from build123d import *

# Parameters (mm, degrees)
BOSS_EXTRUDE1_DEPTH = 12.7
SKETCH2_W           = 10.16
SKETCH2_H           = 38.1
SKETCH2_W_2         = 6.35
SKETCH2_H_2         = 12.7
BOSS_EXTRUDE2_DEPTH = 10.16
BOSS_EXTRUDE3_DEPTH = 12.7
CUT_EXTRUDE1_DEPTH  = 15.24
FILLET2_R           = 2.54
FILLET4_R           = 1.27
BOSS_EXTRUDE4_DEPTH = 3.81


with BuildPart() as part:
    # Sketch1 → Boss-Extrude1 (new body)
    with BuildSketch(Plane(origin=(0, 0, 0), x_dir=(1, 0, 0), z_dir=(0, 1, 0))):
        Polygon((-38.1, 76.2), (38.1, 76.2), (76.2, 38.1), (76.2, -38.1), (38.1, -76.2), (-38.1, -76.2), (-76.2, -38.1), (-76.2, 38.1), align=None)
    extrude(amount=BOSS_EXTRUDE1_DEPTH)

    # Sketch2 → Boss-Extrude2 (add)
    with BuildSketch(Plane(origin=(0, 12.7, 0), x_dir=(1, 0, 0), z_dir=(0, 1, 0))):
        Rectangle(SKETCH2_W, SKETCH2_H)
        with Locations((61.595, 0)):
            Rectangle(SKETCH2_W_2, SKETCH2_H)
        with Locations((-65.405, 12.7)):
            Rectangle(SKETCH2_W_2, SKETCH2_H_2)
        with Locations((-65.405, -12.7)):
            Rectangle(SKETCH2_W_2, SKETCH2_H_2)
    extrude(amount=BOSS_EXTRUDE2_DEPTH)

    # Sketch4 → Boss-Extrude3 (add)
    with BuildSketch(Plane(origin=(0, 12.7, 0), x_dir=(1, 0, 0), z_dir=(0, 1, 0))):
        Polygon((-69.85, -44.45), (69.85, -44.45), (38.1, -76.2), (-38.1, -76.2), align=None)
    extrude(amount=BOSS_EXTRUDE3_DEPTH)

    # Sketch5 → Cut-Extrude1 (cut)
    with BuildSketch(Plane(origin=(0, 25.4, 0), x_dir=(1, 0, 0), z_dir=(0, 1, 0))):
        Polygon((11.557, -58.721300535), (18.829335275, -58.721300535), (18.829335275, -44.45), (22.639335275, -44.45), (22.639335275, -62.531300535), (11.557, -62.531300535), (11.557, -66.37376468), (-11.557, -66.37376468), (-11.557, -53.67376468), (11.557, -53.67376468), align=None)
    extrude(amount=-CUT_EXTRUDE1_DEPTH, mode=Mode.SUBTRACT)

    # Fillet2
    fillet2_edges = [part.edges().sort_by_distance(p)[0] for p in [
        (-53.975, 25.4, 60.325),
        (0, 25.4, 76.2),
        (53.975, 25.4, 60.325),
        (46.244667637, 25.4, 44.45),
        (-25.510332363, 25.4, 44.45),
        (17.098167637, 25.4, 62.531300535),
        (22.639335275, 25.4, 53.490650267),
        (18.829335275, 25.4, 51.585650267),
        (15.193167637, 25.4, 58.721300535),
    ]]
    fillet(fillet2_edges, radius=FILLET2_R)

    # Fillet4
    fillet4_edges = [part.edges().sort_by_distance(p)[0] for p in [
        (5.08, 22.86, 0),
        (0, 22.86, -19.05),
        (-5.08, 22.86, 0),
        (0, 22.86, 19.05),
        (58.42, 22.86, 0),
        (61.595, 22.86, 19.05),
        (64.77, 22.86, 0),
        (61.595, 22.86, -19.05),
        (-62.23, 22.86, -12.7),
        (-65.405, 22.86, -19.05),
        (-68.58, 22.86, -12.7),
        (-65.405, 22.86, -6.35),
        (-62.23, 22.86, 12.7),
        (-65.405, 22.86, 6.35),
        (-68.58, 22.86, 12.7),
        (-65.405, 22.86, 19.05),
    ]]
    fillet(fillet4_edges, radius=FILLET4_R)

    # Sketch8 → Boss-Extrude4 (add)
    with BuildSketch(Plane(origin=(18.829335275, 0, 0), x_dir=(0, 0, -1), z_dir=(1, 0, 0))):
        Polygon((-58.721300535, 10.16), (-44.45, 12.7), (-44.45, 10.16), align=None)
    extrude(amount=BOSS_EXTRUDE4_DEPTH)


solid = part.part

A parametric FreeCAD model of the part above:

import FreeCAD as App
import Part
import Sketcher

V = App.Vector
Q = App.Units.Quantity


def edges_at(feature, points):
    """Names of the edges that pass closest to the given points."""
    edges = feature.Shape.Edges
    near = lambda p: min(range(len(edges)), key=lambda i: edges[i].distToShape(Part.Vertex(*p))[0])
    return sorted({f"Edge{near(p) + 1}" for p in points})


def add_polygon(sketch, points):
    """Adds a closed chain of lines whose ends are joined by coincident constraints."""
    first, n = sketch.GeometryCount, len(points)
    for a, b in zip(points, points[1:] + points[:1]):
        sketch.addGeometry(Part.LineSegment(App.Vector(*a, 0), App.Vector(*b, 0)), False)
    for i in range(n):
        sketch.addConstraint(Sketcher.Constraint("Coincident", first + i, 2, first + (i + 1) % n, 1))

doc = App.newDocument("Part")
body = doc.addObject("PartDesign::Body", "Body")

# Sketch on XZ plane
sketch1 = doc.addObject("Sketcher::SketchObject", "Sketch")
body.addObject(sketch1)
sketch1.AttachmentSupport = (doc.XZ_Plane, [""])
sketch1.MapMode = "FlatFace"
add_polygon(sketch1, [(38, -76), (-38, -76), (-76, -38), (-76, 38), (-38, 76), (38, 76), (76, 38), (76, -38)])  # lines 0-7
sketch1.addConstraint([
    Sketcher.Constraint("Horizontal", 0),
    Sketcher.Constraint("Vertical", 2),
    Sketcher.Constraint("Horizontal", 4),
    Sketcher.Constraint("Vertical", 6),
    Sketcher.Constraint("Symmetric", 0, 2, 4, 2, -1, 1),
    Sketcher.Constraint("Symmetric", 1, 2, 5, 2, -1, 1),
    Sketcher.Constraint("Perpendicular", 1, 3),
    Sketcher.Constraint("Perpendicular", 5, 7),
    Sketcher.Constraint("Horizontal", 2, 2, 5, 2),
    Sketcher.Constraint("Horizontal", 1, 2, 6, 2),
    Sketcher.Constraint("Vertical", 0, 2, 3, 2),
    Sketcher.Constraint("Equal", 4, 2),
    Sketcher.Constraint("DistanceX", 0, 2, 0, 1, Q("3 in")),
    Sketcher.Constraint("DistanceY", 0, 2, -1, 1, Q("3 in")),
])
pad1 = doc.addObject("PartDesign::Pad", "Pad")
body.addObject(pad1)
pad1.Profile = sketch1
pad1.Length = Q("0.5 in")
pad1.Reversed = True

# Sketch on XZ plane
sketch2 = doc.addObject("Sketcher::SketchObject", "Sketch001")
body.addObject(sketch2)
sketch2.AttachmentSupport = (doc.XZ_Plane, [""])
sketch2.MapMode = "FlatFace"
sketch2.AttachmentOffset = App.Placement(V(0, 0, -0.5 * 25.4), App.Rotation())
add_polygon(sketch2, [(-5, -19), (-5, 19), (5, 19), (5, -19)])  # lines 0-3
add_polygon(sketch2, [(58, -19), (58, 19), (65, 19), (65, -19)])  # lines 4-7
add_polygon(sketch2, [(-69, -19), (-69, -6), (-62, -6), (-62, -19)])  # lines 8-11
add_polygon(sketch2, [(-69, 6), (-69, 19), (-62, 19), (-62, 6)])  # lines 12-15
sketch2.addConstraint([
    Sketcher.Constraint("Vertical", 0),
    Sketcher.Constraint("Horizontal", 1),
    Sketcher.Constraint("Vertical", 2),
    Sketcher.Constraint("Horizontal", 3),
    Sketcher.Constraint("Vertical", 4),
    Sketcher.Constraint("Horizontal", 5),
    Sketcher.Constraint("Vertical", 6),
    Sketcher.Constraint("Horizontal", 7),
    Sketcher.Constraint("Vertical", 8),
    Sketcher.Constraint("Horizontal", 9),
    Sketcher.Constraint("Vertical", 10),
    Sketcher.Constraint("Horizontal", 11),
    Sketcher.Constraint("Vertical", 12),
    Sketcher.Constraint("Horizontal", 13),
    Sketcher.Constraint("Vertical", 14),
    Sketcher.Constraint("Horizontal", 15),
    Sketcher.Constraint("Symmetric", 0, 2, 2, 2, -1, 1),
    Sketcher.Constraint("Symmetric", 11, 2, 12, 2, -1),
    Sketcher.Constraint("Symmetric", 9, 2, 14, 2, -1),
    Sketcher.Constraint("Horizontal", 1, 2, 4, 2),
    Sketcher.Constraint("Horizontal", 3, 2, 6, 2),
    Sketcher.Constraint("Horizontal", 7, 2, 10, 2),
    Sketcher.Constraint("Equal", 7, 9),
    Sketcher.Constraint("DistanceX", 1, 1, 1, 2, Q("0.4 in")),
    Sketcher.Constraint("DistanceY", 0, 1, 0, 2, Q("1.5 in")),
    Sketcher.Constraint("DistanceY", 8, 1, 8, 2, Q("0.5 in")),
    Sketcher.Constraint("DistanceX", 8, 2, 7, 2, Q("5 in")),
    Sketcher.Constraint("DistanceX", 5, 1, 5, 2, Q("0.25 in")),
    Sketcher.Constraint("DistanceX", -1, 1, 4, 2, Q("2.3 in")),
])
pad2 = doc.addObject("PartDesign::Pad", "Pad001")
body.addObject(pad2)
pad2.Profile = sketch2
pad2.Length = Q("0.4 in")
pad2.Reversed = True

# Sketch on XZ plane
sketch3 = doc.addObject("Sketcher::SketchObject", "Sketch002")
body.addObject(sketch3)
sketch3.AttachmentSupport = (doc.XZ_Plane, [""])
sketch3.MapMode = "FlatFace"
sketch3.AttachmentOffset = App.Placement(V(0, 0, -0.5 * 25.4), App.Rotation())
add_polygon(sketch3, [(70, 44), (-70, 44), (-38, 76), (38, 76)])  # lines 0-3
sketch3.addConstraint([
    Sketcher.Constraint("Horizontal", 0),
    Sketcher.Constraint("Horizontal", 2),
    Sketcher.Constraint("Perpendicular", 1, 3),
    Sketcher.Constraint("Equal", 1, 3),
    Sketcher.Constraint("DistanceX", 2, 1, 2, 2, Q("3 in")),
    Sketcher.Constraint("DistanceX", 0, 2, 0, 1, Q("5.5 in")),
    Sketcher.Constraint("DistanceY", -1, 1, 1, 2, Q("3 in")),
    Sketcher.Constraint("DistanceX", 1, 2, -1, 1, Q("1.5 in")),
])
pad3 = doc.addObject("PartDesign::Pad", "Pad002")
body.addObject(pad3)
pad3.Profile = sketch3
pad3.Length = Q("0.5 in")
pad3.Reversed = True

# Sketch on XZ plane
sketch4 = doc.addObject("Sketcher::SketchObject", "Sketch003")
body.addObject(sketch4)
sketch4.AttachmentSupport = (doc.XZ_Plane, [""])
sketch4.MapMode = "FlatFace"
sketch4.AttachmentOffset = App.Placement(V(0, 0, -1 * 25.4), App.Rotation())
add_polygon(sketch4, [(18.8, 58.7), (11.6, 58.7), (11.6, 53.7), (-11.6, 53.7), (-11.6, 66.4), (11.6, 66.4), (11.6, 62.5), (22.6, 62.5), (22.6, 44.5), (18.8, 44.5)])  # lines 0-9
sketch4.addConstraint([
    Sketcher.Constraint("Horizontal", 0),
    Sketcher.Constraint("Vertical", 1),
    Sketcher.Constraint("Horizontal", 2),
    Sketcher.Constraint("Vertical", 3),
    Sketcher.Constraint("Horizontal", 4),
    Sketcher.Constraint("Vertical", 5),
    Sketcher.Constraint("Horizontal", 6),
    Sketcher.Constraint("Vertical", 7),
    Sketcher.Constraint("Horizontal", 8),
    Sketcher.Constraint("Vertical", 9),
    Sketcher.Constraint("Vertical", 1, 2, 4, 2),
    Sketcher.Constraint("DistanceY", 3, 1, 3, 2, Q("0.5 in")),
    Sketcher.Constraint("DistanceX", 2, 2, 2, 1, Q("0.91 in")),
    Sketcher.Constraint("DistanceX", 8, 2, 8, 1, Q("0.15 in")),
    Sketcher.Constraint("DistanceY", -1, 1, 7, 2, Q("1.75 in")),
    Sketcher.Constraint("DistanceY", 0, 2, 5, 2, Q("0.15 in")),
    Sketcher.Constraint("DistanceX", -1, 1, 0, 2, Q("0.455 in")),
    Sketcher.Constraint("DistanceY", 7, 2, 7, 1, 18.081301),
    Sketcher.Constraint("DistanceX", 0, 2, 0, 1, 7.272335),
    Sketcher.Constraint("DistanceY", 1, 2, 1, 1, 5.047536),
])
pocket1 = doc.addObject("PartDesign::Pocket", "Pocket")
body.addObject(pocket1)
pocket1.Profile = sketch4
pocket1.Length = Q("0.6 in")
pocket1.Reversed = True
doc.recompute()

fillet = doc.addObject("PartDesign::Fillet", "Fillet")
body.addObject(fillet)
fillet.Base = (pocket1, edges_at(pocket1, [
    (-53.975, 25.4, 60.325),
    (0, 25.4, 76.2),
    (53.975, 25.4, 60.325),
    (46.245, 25.4, 44.45),
    (-25.51, 25.4, 44.45),
    (17.098, 25.4, 62.531),
    (22.639, 25.4, 53.491),
    (18.829, 25.4, 51.586),
    (15.193, 25.4, 58.721),
]))
fillet.Radius = Q("0.1 in")
doc.recompute()

fillet2 = doc.addObject("PartDesign::Fillet", "Fillet001")
body.addObject(fillet2)
fillet2.Base = (fillet, edges_at(fillet, [
    (5.08, 22.86, 0),
    (0, 22.86, -19.05),
    (-5.08, 22.86, 0),
    (0, 22.86, 19.05),
    (58.42, 22.86, 0),
    (61.595, 22.86, 19.05),
    (64.77, 22.86, 0),
    (61.595, 22.86, -19.05),
    (-62.23, 22.86, -12.7),
    (-65.405, 22.86, -19.05),
    (-68.58, 22.86, -12.7),
    (-65.405, 22.86, -6.35),
    (-62.23, 22.86, 12.7),
    (-65.405, 22.86, 6.35),
    (-68.58, 22.86, 12.7),
    (-65.405, 22.86, 19.05),
]))
fillet2.Radius = Q("0.05 in")

# Sketch on YZ plane
sketch5 = doc.addObject("Sketcher::SketchObject", "Sketch004")
body.addObject(sketch5)
sketch5.AttachmentSupport = (doc.YZ_Plane, [""])
sketch5.MapMode = "FlatFace"
sketch5.AttachmentOffset = App.Placement(V(0, 0, 18.829335), App.Rotation())
add_polygon(sketch5, [(12.7, 44.5), (10.2, 58.7), (10.2, 44.5)])  # lines 0-2
sketch5.addConstraint([
    Sketcher.Constraint("Vertical", 1),
    Sketcher.Constraint("Horizontal", 2),
    Sketcher.Constraint("DistanceX", 2, 1, 2, 2, Q("0.1 in")),
    Sketcher.Constraint("DistanceX", -1, 1, 0, 2, Q("0.4 in")),
    Sketcher.Constraint("DistanceY", -1, 1, 1, 2, Q("1.75 in")),
    Sketcher.Constraint("DistanceY", 1, 2, 1, 1, 14.271301),
])
pad4 = doc.addObject("PartDesign::Pad", "Pad003")
body.addObject(pad4)
pad4.Profile = sketch5
pad4.Length = Q("0.15 in")

doc.recompute()
